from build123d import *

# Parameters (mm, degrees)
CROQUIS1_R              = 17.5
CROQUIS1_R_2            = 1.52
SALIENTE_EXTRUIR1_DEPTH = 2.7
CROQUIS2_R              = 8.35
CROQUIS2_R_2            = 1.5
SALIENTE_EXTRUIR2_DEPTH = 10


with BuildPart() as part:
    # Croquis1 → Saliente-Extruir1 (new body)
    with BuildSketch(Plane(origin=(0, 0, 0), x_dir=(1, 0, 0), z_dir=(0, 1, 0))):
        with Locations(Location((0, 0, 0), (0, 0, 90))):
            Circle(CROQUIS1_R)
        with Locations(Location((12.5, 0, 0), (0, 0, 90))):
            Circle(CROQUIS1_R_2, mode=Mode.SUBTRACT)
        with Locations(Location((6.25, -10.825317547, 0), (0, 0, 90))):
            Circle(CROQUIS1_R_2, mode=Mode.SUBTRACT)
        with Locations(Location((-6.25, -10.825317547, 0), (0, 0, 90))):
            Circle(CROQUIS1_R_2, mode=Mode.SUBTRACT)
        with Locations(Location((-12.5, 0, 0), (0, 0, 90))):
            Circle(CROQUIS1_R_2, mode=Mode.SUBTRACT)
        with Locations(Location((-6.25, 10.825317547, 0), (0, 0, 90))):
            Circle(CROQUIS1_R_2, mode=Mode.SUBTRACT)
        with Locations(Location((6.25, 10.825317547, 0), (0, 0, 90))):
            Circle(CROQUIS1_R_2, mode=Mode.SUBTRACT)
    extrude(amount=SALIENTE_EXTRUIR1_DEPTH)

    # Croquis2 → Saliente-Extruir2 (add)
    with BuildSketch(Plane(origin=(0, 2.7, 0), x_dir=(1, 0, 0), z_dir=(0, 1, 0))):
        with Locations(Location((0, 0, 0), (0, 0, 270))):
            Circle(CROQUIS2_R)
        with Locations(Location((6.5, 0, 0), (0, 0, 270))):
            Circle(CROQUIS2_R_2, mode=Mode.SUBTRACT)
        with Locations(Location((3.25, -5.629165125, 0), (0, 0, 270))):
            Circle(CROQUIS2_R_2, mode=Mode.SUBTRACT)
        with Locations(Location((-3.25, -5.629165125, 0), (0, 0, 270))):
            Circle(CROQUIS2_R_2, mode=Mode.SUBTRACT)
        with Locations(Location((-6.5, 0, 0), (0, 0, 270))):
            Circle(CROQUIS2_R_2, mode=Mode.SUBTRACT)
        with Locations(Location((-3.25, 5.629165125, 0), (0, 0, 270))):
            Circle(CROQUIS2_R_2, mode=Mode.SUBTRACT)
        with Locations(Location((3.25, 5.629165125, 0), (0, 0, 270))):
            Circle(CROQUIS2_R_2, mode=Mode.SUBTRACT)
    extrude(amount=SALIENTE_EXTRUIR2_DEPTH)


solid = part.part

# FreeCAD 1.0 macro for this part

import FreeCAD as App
import Part
import Sketcher

V = App.Vector

doc = App.newDocument("Part")
body = doc.addObject("PartDesign::Body", "Body")

# Sketch on XZ plane
sketch1 = body.newObject("Sketcher::SketchObject", "Sketch")
sketch1.AttachmentSupport = (doc.getObject("XZ_Plane"), [""])
sketch1.MapMode = "FlatFace"
sketch1.addGeometry([
    Part.Circle(V(0, 0, 0), V(0, 0, 1), 17.5),  # 0
    Part.Circle(V(6.2, 10.8, 0), V(0, 0, 1), 1.5),  # 1
    Part.Circle(V(12.5, 0, 0), V(0, 0, 1), 1.5),  # 2
    Part.Circle(V(6.2, -10.8, 0), V(0, 0, 1), 1.5),  # 3
    Part.Circle(V(-6.2, 10.8, 0), V(0, 0, 1), 1.5),  # 4
    Part.Circle(V(-12.5, 0, 0), V(0, 0, 1), 1.5),  # 5
    Part.Circle(V(-6.2, -10.8, 0), V(0, 0, 1), 1.5),  # 6
], False)
sketch1.addConstraint([
    Sketcher.Constraint("Coincident", 0, 3, -1, 1),
    Sketcher.Constraint("Equal", 1, 2),
    Sketcher.Constraint("Equal", 2, 3),
    Sketcher.Constraint("Equal", 3, 4),
    Sketcher.Constraint("Equal", 4, 5),
    Sketcher.Constraint("Equal", 5, 6),
    Sketcher.Constraint("Symmetric", 3, 3, 4, 3, -1, 1),
    Sketcher.Constraint("Symmetric", 2, 3, 5, 3, -1, 1),
    Sketcher.Constraint("Symmetric", 1, 3, 6, 3, -1, 1),
    Sketcher.Constraint("Symmetric", 1, 3, 4, 3, -2),
    Sketcher.Constraint("PointOnObject", 2, 3, -1),
    Sketcher.Constraint("Diameter", 0, 35.0),
    Sketcher.Constraint("Diameter", 1, 3.04),
    Sketcher.Constraint("DistanceX", 5, 3, 2, 3, 25.0),
    Sketcher.Constraint("DistanceX", 4, 3, 1, 3, 12.5),
    Sketcher.Constraint("DistanceY", -1, 1, 1, 3, 10.825318),
])
pad1 = body.newObject("PartDesign::Pad", "Pad")
pad1.Profile = sketch1
pad1.Length = 2.7
pad1.Reversed = True

# Sketch on XZ plane
sketch2 = body.newObject("Sketcher::SketchObject", "Sketch001")
sketch2.AttachmentSupport = (doc.getObject("XZ_Plane"), [""])
sketch2.MapMode = "FlatFace"
sketch2.AttachmentOffset = App.Placement(V(0, 0, -2.7), App.Rotation())
sketch2.addGeometry([
    Part.Circle(V(0, 0, 0), V(0, 0, 1), 8.3),  # 0
    Part.Circle(V(-3.2, -5.6, 0), V(0, 0, 1), 1.5),  # 1
    Part.Circle(V(-6.5, 0, 0), V(0, 0, 1), 1.5),  # 2
    Part.Circle(V(-3.2, 5.6, 0), V(0, 0, 1), 1.5),  # 3
    Part.Circle(V(3.2, -5.6, 0), V(0, 0, 1), 1.5),  # 4
    Part.Circle(V(6.5, 0, 0), V(0, 0, 1), 1.5),  # 5
    Part.Circle(V(3.2, 5.6, 0), V(0, 0, 1), 1.5),  # 6
], False)
sketch2.addConstraint([
    Sketcher.Constraint("Coincident", 0, 3, -1, 1),
    Sketcher.Constraint("Equal", 1, 2),
    Sketcher.Constraint("Equal", 2, 3),
    Sketcher.Constraint("Equal", 3, 4),
    Sketcher.Constraint("Equal", 4, 5),
    Sketcher.Constraint("Equal", 5, 6),
    Sketcher.Constraint("Symmetric", 3, 3, 4, 3, -1, 1),
    Sketcher.Constraint("Symmetric", 2, 3, 5, 3, -1, 1),
    Sketcher.Constraint("Symmetric", 1, 3, 6, 3, -1, 1),
    Sketcher.Constraint("Symmetric", 1, 3, 4, 3, -2),
    Sketcher.Constraint("PointOnObject", 2, 3, -1),
    Sketcher.Constraint("Diameter", 1, 3.0),
    Sketcher.Constraint("Diameter", 0, 16.7),
    Sketcher.Constraint("DistanceX", 2, 3, 5, 3, 13.0),
    Sketcher.Constraint("DistanceX", 1, 3, 4, 3, 6.5),
    Sketcher.Constraint("DistanceY", 1, 3, 3, 3, 11.25833),
])
pad2 = body.newObject("PartDesign::Pad", "Pad001")
pad2.Profile = sketch2
pad2.Length = 10
pad2.Reversed = True

doc.recompute()
